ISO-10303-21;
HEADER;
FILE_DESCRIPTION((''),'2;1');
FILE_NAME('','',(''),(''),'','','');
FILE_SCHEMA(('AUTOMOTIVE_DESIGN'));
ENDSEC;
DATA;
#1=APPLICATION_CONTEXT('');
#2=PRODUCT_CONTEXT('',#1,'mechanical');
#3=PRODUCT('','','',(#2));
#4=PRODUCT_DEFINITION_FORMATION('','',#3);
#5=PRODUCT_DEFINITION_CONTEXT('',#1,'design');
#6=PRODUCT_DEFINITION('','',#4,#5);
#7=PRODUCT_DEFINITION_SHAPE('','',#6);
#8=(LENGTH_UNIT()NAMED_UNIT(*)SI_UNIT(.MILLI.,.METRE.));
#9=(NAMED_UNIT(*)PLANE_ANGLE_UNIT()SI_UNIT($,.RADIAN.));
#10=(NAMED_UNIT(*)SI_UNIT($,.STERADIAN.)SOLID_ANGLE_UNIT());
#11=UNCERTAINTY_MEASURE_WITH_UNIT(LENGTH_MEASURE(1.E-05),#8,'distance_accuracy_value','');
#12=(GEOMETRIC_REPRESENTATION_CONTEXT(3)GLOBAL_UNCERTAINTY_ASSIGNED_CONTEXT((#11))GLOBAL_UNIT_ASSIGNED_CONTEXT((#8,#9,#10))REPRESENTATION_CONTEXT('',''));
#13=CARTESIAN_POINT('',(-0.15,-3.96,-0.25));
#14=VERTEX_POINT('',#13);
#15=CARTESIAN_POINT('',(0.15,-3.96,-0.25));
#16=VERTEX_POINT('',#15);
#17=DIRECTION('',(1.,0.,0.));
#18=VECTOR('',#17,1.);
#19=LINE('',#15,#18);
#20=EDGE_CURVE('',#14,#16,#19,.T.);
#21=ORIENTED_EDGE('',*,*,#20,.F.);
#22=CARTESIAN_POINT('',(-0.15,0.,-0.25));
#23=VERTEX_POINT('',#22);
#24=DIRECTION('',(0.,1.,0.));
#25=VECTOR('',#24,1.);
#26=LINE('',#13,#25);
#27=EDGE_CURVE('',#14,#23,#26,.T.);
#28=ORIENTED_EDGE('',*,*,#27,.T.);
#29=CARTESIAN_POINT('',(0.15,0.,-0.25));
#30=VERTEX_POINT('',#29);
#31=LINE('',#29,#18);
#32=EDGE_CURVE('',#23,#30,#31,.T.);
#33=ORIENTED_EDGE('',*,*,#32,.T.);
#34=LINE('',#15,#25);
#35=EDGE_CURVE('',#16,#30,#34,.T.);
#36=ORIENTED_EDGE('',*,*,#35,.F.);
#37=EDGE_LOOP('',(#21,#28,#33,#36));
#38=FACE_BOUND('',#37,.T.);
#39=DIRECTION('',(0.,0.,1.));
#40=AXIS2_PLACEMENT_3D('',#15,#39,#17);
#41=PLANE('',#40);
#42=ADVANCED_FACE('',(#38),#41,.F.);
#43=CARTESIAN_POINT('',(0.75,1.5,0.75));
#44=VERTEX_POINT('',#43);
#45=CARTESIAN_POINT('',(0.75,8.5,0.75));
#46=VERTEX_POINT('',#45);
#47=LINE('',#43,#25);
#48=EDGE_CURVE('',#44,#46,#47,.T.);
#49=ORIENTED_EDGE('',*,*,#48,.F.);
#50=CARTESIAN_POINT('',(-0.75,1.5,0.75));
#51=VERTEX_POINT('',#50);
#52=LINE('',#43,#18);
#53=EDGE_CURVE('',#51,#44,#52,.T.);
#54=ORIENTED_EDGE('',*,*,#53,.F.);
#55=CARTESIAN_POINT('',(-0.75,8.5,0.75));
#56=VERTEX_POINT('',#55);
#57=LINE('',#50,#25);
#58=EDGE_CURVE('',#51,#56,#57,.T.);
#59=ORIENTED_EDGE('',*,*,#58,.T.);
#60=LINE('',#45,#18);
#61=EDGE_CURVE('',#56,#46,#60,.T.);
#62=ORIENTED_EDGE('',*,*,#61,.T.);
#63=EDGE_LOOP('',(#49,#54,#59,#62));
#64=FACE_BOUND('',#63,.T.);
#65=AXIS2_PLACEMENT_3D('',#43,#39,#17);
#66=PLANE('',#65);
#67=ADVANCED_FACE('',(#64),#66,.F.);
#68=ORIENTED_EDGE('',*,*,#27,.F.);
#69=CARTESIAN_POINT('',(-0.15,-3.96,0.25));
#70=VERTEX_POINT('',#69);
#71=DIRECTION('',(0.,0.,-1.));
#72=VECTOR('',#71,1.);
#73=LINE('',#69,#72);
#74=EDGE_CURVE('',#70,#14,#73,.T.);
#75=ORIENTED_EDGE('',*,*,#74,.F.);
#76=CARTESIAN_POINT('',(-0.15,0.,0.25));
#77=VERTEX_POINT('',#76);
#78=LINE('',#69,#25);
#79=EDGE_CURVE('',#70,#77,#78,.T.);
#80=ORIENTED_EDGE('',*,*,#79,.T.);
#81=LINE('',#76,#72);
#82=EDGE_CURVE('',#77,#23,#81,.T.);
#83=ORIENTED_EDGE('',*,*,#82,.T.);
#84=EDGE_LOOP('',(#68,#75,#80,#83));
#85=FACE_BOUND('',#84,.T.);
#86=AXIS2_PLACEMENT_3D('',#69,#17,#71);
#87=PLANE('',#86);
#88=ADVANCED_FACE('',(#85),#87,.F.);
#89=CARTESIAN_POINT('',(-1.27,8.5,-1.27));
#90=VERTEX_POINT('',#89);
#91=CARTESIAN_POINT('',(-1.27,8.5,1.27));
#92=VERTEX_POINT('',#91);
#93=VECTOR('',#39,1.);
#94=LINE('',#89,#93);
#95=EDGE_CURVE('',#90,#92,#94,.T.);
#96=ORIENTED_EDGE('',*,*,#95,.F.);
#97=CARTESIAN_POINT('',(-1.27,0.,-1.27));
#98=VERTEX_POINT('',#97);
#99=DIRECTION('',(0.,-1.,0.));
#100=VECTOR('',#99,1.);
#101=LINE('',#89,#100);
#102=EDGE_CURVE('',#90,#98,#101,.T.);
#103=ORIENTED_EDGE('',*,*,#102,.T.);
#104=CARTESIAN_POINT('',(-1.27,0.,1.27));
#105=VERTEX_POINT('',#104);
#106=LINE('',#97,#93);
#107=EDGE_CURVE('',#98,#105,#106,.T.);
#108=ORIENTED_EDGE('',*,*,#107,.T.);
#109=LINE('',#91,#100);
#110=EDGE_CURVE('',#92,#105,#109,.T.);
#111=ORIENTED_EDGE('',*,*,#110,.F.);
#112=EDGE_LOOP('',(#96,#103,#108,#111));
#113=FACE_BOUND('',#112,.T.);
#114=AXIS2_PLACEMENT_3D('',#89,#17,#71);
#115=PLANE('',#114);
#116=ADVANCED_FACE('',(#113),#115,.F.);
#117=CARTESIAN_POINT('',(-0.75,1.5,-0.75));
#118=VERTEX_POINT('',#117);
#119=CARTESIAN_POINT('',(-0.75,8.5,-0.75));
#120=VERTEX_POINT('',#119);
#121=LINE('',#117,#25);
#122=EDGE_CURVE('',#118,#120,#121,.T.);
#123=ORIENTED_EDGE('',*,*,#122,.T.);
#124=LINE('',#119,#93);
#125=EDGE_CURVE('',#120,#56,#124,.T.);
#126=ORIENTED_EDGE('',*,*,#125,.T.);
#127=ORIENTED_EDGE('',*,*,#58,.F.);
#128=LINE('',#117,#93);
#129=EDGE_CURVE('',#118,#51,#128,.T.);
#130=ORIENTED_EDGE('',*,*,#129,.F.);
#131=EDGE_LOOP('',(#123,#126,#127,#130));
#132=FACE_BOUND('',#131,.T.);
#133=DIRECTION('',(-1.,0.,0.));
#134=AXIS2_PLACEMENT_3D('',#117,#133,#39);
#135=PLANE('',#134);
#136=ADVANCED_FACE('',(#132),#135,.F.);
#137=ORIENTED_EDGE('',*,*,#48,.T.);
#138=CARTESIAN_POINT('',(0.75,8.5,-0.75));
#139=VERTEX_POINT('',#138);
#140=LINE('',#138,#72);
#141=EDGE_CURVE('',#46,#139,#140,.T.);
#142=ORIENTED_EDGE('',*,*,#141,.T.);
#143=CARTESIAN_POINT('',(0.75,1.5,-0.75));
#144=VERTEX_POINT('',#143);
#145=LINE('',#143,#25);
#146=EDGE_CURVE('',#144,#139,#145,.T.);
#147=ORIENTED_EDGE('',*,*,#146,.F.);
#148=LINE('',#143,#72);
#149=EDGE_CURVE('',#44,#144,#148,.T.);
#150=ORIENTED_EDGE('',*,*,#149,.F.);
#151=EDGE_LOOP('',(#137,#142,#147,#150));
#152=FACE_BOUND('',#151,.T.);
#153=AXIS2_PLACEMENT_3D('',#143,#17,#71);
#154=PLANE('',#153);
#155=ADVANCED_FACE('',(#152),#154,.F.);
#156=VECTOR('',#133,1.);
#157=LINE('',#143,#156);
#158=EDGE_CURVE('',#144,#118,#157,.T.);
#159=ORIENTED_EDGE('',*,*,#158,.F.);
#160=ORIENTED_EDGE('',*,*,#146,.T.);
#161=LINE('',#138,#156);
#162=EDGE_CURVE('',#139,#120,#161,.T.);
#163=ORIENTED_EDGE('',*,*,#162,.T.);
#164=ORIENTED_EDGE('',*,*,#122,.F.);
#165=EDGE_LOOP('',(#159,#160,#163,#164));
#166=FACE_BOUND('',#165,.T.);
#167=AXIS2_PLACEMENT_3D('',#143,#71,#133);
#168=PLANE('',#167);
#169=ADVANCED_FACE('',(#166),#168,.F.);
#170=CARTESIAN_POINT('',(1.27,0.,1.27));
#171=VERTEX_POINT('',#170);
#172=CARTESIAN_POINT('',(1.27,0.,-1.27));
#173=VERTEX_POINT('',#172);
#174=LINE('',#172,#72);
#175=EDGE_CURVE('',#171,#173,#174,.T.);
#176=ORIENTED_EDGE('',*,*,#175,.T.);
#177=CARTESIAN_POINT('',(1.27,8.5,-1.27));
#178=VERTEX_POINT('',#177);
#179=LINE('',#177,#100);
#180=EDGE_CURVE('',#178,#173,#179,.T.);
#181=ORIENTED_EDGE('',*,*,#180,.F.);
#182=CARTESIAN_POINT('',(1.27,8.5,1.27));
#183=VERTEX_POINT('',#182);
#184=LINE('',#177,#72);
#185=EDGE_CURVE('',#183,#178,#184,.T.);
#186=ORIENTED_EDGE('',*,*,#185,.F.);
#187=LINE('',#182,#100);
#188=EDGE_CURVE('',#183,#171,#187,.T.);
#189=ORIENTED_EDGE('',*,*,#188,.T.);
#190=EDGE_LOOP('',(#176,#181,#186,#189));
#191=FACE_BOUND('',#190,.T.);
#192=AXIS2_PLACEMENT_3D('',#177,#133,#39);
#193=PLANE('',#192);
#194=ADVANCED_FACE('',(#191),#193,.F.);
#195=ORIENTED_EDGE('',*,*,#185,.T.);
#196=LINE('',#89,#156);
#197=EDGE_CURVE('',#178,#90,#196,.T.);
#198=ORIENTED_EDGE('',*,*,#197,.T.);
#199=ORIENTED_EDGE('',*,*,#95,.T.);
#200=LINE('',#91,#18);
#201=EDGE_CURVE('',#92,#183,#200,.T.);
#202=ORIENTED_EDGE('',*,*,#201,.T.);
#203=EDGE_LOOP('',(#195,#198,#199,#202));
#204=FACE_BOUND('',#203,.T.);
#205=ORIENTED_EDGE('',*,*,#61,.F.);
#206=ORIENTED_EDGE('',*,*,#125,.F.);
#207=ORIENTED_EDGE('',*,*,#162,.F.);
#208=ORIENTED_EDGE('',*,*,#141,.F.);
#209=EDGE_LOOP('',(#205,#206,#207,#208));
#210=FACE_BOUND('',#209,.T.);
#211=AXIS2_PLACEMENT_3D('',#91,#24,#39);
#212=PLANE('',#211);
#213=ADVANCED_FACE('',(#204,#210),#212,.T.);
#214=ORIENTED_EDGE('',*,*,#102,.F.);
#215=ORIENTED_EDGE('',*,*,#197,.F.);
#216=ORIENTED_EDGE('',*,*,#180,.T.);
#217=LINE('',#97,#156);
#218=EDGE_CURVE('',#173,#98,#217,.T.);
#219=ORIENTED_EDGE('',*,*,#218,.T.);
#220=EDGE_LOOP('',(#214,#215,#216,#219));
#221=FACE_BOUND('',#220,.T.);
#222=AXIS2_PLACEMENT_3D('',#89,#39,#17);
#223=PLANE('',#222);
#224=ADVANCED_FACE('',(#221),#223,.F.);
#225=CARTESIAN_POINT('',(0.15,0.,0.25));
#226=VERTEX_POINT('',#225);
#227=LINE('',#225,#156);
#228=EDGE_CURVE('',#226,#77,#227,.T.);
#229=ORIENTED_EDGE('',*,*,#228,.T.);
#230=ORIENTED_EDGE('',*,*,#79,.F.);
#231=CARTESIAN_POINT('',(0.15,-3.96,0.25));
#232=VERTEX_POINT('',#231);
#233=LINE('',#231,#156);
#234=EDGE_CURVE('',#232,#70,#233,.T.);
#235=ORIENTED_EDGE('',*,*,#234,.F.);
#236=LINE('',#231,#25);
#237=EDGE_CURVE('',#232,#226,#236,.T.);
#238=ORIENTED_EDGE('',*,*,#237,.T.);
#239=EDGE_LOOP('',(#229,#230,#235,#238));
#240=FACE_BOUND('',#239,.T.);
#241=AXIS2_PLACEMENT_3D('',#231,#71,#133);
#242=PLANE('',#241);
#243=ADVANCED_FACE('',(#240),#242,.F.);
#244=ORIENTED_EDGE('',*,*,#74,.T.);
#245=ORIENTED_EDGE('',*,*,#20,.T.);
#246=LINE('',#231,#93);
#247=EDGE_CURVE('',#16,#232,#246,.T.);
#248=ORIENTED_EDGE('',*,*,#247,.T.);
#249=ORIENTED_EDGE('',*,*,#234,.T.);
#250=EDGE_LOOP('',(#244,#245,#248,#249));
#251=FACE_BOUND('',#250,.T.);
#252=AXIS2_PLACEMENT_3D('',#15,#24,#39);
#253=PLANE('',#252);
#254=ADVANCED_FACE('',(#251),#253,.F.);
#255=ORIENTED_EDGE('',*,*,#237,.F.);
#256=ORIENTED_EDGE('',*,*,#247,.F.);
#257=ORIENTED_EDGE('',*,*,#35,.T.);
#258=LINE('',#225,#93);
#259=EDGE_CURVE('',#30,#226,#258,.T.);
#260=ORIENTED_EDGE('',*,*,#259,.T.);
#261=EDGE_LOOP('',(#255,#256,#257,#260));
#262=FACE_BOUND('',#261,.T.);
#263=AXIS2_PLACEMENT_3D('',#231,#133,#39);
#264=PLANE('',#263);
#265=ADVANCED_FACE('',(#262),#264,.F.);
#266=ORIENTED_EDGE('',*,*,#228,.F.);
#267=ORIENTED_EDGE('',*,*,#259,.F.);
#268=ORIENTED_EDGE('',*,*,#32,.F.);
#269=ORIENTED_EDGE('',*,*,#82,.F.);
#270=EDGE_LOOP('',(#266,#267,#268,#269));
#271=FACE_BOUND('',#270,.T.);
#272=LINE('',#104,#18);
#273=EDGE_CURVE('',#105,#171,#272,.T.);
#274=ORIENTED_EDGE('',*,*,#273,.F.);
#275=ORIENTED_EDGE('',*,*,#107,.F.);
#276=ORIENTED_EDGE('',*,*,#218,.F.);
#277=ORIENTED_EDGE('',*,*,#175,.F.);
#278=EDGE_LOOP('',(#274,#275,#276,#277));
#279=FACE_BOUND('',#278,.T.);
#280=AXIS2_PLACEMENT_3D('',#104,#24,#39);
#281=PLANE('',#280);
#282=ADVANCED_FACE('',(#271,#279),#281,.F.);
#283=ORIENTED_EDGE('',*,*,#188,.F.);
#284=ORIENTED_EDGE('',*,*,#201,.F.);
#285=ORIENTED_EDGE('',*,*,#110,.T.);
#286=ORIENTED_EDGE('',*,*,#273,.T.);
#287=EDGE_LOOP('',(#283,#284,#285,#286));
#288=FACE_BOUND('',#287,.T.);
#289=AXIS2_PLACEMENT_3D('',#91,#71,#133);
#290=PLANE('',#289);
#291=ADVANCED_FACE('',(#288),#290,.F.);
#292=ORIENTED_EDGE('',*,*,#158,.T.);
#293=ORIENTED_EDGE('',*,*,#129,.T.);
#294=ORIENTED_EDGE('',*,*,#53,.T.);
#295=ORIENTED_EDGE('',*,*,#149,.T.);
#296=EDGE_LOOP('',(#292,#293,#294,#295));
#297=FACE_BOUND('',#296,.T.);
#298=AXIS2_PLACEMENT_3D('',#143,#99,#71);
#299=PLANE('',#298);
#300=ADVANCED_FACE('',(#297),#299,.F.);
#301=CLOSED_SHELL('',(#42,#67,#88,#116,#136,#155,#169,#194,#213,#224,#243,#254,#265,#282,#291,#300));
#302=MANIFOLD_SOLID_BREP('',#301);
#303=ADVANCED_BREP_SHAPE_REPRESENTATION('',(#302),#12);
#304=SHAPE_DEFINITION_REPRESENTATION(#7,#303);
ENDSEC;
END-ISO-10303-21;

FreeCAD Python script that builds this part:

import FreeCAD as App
import Part
import Sketcher
from FreeCAD import Vector
Q = App.Units.Quantity

doc = App.newDocument("Part")
params = doc.addObject("Spreadsheet::Sheet", "Params")
for row, (alias, value) in enumerate([
    ("sketch1_width", "2.54 mm"),
    ("pad1_length", "8.5 mm"),
    ("sketch2_width", "0.3 mm"),
    ("sketch2_height", "0.5 mm"),
    ("pad2_length", "3.96 mm"),
    ("sketch3_width", "1.5 mm"),
    ("pocket1_length", "7 mm"),
], start=1):
    params.set(f"A{row}", alias)
    params.set(f"B{row}", "=" + value)
    params.setAlias(f"B{row}", alias)

body = doc.addObject("PartDesign::Body", "Body")

# Sketch on XZ plane
sketch1 = doc.addObject("Sketcher::SketchObject", "Sketch")
body.addObject(sketch1)
sketch1.AttachmentSupport = (doc.XZ_Plane, [""])
sketch1.MapMode = "FlatFace"
sketch1.addGeometry([
    Part.LineSegment(Vector(-1.3, -1.3, 0), Vector(-1.3, 1.3, 0)),
    Part.LineSegment(Vector(-1.3, 1.3, 0), Vector(1.3, 1.3, 0)),
    Part.LineSegment(Vector(1.3, 1.3, 0), Vector(1.3, -1.3, 0)),
    Part.LineSegment(Vector(1.3, -1.3, 0), Vector(-1.3, -1.3, 0)),
], False)
sketch1.addConstraint([
    Sketcher.Constraint("Coincident", 0, 2, 1, 1),
    Sketcher.Constraint("Coincident", 1, 2, 2, 1),
    Sketcher.Constraint("Coincident", 2, 2, 3, 1),
    Sketcher.Constraint("Coincident", 3, 2, 0, 1),
    Sketcher.Constraint("Vertical", 0),
    Sketcher.Constraint("Horizontal", 1),
    Sketcher.Constraint("Vertical", 2),
    Sketcher.Constraint("Horizontal", 3),
    Sketcher.Constraint("Symmetric", 0, 2, 2, 2, -1, 1),
    Sketcher.Constraint("Equal", 3, 0),
    Sketcher.Constraint("DistanceX", 1, 1, 1, 2, Q("2.54 mm")),
])
sketch1.setExpression("Constraints[10]", "Params.sketch1_width")
pad1 = doc.addObject("PartDesign::Pad", "Pad")
body.addObject(pad1)
pad1.Profile = sketch1
pad1.setExpression("Length", "Params.pad1_length")
pad1.Reversed = True

# Sketch on XZ plane
sketch2 = doc.addObject("Sketcher::SketchObject", "Sketch001")
body.addObject(sketch2)
sketch2.AttachmentSupport = (doc.XZ_Plane, [""])
sketch2.MapMode = "FlatFace"
sketch2.addGeometry([
    Part.LineSegment(Vector(-0.15, 0.25, 0), Vector(-0.15, -0.25, 0)),
    Part.LineSegment(Vector(-0.15, -0.25, 0), Vector(0.15, -0.25, 0)),
    Part.LineSegment(Vector(0.15, -0.25, 0), Vector(0.15, 0.25, 0)),
    Part.LineSegment(Vector(0.15, 0.25, 0), Vector(-0.15, 0.25, 0)),
], False)
sketch2.addConstraint([
    Sketcher.Constraint("Coincident", 0, 2, 1, 1),
    Sketcher.Constraint("Coincident", 1, 2, 2, 1),
    Sketcher.Constraint("Coincident", 2, 2, 3, 1),
    Sketcher.Constraint("Coincident", 3, 2, 0, 1),
    Sketcher.Constraint("Vertical", 0),
    Sketcher.Constraint("Horizontal", 1),
    Sketcher.Constraint("Vertical", 2),
    Sketcher.Constraint("Horizontal", 3),
    Sketcher.Constraint("Symmetric", 0, 2, 2, 2, -1, 1),
    Sketcher.Constraint("DistanceX", 1, 1, 1, 2, Q("0.3 mm")),
    Sketcher.Constraint("DistanceY", 0, 2, 0, 1, Q("0.5 mm")),
])
sketch2.setExpression("Constraints[9]", "Params.sketch2_width")
sketch2.setExpression("Constraints[10]", "Params.sketch2_height")
pad2 = doc.addObject("PartDesign::Pad", "Pad001")
body.addObject(pad2)
pad2.Profile = sketch2
pad2.setExpression("Length", "Params.pad2_length")

# Sketch on XZ plane
sketch3 = doc.addObject("Sketcher::SketchObject", "Sketch002")
body.addObject(sketch3)
sketch3.AttachmentSupport = (doc.XZ_Plane, [""])
sketch3.MapMode = "FlatFace"
sketch3.AttachmentOffset = App.Placement(Vector(0, 0, -8.5), App.Rotation())
sketch3.addGeometry([
    Part.LineSegment(Vector(0.8, 0.8, 0), Vector(0.8, -0.8, 0)),
    Part.LineSegment(Vector(0.8, -0.8, 0), Vector(-0.8, -0.8, 0)),
    Part.LineSegment(Vector(-0.8, -0.8, 0), Vector(-0.8, 0.8, 0)),
    Part.LineSegment(Vector(-0.8, 0.8, 0), Vector(0.8, 0.8, 0)),
], False)
sketch3.addConstraint([
    Sketcher.Constraint("Coincident", 0, 2, 1, 1),
    Sketcher.Constraint("Coincident", 1, 2, 2, 1),
    Sketcher.Constraint("Coincident", 2, 2, 3, 1),
    Sketcher.Constraint("Coincident", 3, 2, 0, 1),
    Sketcher.Constraint("Vertical", 0),
    Sketcher.Constraint("Horizontal", 1),
    Sketcher.Constraint("Vertical", 2),
    Sketcher.Constraint("Horizontal", 3),
    Sketcher.Constraint("Symmetric", 0, 2, 2, 2, -1, 1),
    Sketcher.Constraint("Equal", 3, 0),
    Sketcher.Constraint("DistanceX", 1, 2, 1, 1, Q("1.5 mm")),
])
sketch3.setExpression("Constraints[10]", "Params.sketch3_width")
pocket1 = doc.addObject("PartDesign::Pocket", "Pocket")
body.addObject(pocket1)
pocket1.Profile = sketch3
pocket1.setExpression("Length", "Params.pocket1_length")
pocket1.Reversed = True

doc.recompute()
